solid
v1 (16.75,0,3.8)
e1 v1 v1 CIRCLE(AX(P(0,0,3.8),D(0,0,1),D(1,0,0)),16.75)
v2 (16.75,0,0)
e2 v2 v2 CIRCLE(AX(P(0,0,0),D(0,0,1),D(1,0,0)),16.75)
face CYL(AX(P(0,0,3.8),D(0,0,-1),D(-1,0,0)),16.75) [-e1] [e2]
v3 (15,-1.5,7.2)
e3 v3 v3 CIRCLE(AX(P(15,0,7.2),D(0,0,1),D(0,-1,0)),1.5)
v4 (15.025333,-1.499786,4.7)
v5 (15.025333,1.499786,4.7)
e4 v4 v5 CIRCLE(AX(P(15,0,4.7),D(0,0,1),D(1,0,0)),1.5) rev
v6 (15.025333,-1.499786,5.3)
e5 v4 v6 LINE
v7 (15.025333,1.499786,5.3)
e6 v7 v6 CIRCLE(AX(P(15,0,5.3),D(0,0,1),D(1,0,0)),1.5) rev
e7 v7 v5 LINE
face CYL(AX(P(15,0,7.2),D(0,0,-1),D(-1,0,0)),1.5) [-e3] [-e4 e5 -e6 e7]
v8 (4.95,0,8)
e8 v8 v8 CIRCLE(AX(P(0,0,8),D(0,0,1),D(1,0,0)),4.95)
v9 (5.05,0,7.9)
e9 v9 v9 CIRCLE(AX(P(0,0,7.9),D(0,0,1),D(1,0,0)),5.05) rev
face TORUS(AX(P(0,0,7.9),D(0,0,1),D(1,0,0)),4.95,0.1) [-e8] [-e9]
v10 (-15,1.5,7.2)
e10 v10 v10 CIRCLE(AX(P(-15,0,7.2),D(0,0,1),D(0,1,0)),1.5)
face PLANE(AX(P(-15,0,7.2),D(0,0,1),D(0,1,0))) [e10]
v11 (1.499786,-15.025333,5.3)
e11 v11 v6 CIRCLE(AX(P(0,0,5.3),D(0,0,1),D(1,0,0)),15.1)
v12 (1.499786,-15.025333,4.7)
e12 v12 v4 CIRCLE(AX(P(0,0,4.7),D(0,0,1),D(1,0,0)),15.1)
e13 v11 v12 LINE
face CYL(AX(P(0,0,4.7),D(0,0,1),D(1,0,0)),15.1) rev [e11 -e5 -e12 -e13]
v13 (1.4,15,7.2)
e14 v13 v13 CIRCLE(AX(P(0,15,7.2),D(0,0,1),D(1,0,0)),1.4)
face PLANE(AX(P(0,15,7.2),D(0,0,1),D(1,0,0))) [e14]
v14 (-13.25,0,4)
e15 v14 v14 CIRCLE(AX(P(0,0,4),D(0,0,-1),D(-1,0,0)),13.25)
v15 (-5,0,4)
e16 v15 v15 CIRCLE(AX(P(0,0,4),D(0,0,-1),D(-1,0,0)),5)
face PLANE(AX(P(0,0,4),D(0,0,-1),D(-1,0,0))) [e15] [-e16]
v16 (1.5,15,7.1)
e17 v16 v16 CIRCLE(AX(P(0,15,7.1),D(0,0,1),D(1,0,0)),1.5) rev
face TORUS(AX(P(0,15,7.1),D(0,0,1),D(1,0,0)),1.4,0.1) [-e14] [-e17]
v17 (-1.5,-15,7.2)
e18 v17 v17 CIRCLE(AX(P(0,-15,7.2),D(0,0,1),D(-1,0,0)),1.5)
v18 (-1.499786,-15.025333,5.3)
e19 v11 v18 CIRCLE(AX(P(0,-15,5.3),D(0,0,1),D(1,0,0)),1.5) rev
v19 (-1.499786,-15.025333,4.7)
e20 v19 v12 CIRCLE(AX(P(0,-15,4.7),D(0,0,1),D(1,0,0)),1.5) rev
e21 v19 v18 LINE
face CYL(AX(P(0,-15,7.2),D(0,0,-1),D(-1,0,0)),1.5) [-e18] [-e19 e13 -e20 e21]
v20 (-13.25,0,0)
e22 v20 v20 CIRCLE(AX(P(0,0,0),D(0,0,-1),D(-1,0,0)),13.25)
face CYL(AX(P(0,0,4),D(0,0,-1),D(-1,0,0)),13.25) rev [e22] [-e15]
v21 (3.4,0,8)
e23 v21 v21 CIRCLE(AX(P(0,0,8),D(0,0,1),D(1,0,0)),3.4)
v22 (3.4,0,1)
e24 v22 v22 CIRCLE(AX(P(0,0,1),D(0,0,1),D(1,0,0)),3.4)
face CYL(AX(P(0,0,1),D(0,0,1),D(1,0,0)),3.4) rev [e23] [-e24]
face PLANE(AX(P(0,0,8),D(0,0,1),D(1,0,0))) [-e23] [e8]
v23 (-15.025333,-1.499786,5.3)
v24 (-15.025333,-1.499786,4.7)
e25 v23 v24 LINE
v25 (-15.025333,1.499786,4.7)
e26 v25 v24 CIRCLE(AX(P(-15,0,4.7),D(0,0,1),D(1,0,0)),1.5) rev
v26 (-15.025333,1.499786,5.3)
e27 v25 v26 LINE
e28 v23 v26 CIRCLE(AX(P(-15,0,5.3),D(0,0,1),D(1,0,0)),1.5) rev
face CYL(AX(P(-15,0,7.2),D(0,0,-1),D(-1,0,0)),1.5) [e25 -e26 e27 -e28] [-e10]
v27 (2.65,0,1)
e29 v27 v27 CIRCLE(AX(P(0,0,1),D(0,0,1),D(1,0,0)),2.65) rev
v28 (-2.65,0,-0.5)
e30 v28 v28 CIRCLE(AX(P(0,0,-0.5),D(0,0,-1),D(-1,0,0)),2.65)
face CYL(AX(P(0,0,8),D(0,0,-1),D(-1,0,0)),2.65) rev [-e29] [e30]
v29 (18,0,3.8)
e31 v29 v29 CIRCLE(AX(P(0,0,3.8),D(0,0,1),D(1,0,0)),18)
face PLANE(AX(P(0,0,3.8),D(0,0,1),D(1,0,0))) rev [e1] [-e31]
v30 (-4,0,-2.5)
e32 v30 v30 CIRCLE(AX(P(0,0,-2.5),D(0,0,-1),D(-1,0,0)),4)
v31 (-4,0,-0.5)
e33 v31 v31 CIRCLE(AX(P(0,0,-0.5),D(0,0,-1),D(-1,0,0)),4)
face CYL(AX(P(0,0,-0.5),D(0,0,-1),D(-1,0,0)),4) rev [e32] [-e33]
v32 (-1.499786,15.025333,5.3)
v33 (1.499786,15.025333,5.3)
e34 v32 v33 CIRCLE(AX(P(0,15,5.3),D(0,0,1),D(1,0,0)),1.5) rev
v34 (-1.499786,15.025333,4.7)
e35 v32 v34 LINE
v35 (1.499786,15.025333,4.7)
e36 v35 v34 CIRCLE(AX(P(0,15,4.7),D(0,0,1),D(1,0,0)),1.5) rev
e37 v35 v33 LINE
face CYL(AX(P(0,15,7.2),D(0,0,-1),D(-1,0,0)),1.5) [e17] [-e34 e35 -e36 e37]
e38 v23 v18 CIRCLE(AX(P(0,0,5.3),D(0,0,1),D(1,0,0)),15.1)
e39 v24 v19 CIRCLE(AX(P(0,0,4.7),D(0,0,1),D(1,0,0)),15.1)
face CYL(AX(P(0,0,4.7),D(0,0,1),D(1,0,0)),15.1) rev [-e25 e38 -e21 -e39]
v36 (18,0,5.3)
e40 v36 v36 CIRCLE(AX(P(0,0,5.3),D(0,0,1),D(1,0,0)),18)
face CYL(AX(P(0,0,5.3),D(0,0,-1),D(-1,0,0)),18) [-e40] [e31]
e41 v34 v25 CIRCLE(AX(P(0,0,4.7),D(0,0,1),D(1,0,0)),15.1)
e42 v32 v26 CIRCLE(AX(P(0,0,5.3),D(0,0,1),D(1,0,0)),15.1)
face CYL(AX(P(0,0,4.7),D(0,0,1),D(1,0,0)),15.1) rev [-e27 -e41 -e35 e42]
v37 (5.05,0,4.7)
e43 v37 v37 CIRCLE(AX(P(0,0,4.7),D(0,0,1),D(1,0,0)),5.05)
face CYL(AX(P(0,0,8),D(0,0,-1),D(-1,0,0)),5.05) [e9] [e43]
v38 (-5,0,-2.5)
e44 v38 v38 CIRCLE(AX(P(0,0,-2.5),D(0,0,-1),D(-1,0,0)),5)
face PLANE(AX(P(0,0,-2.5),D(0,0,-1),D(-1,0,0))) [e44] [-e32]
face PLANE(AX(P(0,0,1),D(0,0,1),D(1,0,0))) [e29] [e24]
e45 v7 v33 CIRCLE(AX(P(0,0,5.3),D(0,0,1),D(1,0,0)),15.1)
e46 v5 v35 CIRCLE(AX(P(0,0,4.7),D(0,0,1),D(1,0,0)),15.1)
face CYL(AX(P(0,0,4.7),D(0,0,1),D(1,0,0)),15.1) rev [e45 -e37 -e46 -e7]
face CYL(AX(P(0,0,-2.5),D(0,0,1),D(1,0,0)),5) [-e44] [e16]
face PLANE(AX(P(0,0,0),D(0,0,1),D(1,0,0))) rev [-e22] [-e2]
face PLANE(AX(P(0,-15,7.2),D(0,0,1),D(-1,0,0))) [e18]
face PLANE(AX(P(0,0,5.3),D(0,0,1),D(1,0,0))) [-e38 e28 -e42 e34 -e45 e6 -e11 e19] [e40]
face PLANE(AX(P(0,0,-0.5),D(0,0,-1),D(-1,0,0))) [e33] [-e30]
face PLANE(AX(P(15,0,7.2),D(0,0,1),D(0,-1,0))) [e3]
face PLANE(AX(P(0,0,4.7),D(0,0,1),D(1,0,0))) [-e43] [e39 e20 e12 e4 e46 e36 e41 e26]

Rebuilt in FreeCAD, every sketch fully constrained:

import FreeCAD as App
import Part
import Sketcher


def edges_at(feature, points):
    """Names of the edges that pass closest to the given points."""
    edges = feature.Shape.Edges
    near = lambda p: min(range(len(edges)), key=lambda i: edges[i].distToShape(Part.Vertex(*p))[0])
    return sorted({f"Edge{near(p) + 1}" for p in points})

doc = App.newDocument("Part")
body = doc.addObject("PartDesign::Body", "Body")

# Sketch on XY plane
sketch1 = doc.addObject("Sketcher::SketchObject", "Sketch")
body.addObject(sketch1)
sketch1.AttachmentSupport = (doc.XY_Plane, [""])
sketch1.MapMode = "FlatFace"
sketch1.addGeometry(Part.Circle(App.Vector(0, 0, 0), App.Vector(0, 0, 1), 17), False)
sketch1.addConstraint(Sketcher.Constraint("Coincident", 0, 3, -1, 1))
sketch1.addConstraint(Sketcher.Constraint("Diameter", 0, 33.5))
pad1 = doc.addObject("PartDesign::Pad", "Pad")
body.addObject(pad1)
pad1.Profile = sketch1
pad1.Length = 3.8

# Sketch on XY plane
sketch2 = doc.addObject("Sketcher::SketchObject", "Sketch001")
body.addObject(sketch2)
sketch2.AttachmentSupport = (doc.XY_Plane, [""])
sketch2.MapMode = "FlatFace"
sketch2.AttachmentOffset = App.Placement(App.Vector(0, 0, 3.8), App.Rotation())
sketch2.addGeometry(Part.Circle(App.Vector(0, 0, 0), App.Vector(0, 0, 1), 18), False)
sketch2.addConstraint(Sketcher.Constraint("Coincident", 0, 3, -1, 1))
sketch2.addConstraint(Sketcher.Constraint("Diameter", 0, 36.0))
pad2 = doc.addObject("PartDesign::Pad", "Pad001")
body.addObject(pad2)
pad2.Profile = sketch2
pad2.Length = 1.5

# Sketch on XY plane
sketch3 = doc.addObject("Sketcher::SketchObject", "Sketch002")
body.addObject(sketch3)
sketch3.AttachmentSupport = (doc.XY_Plane, [""])
sketch3.MapMode = "FlatFace"
sketch3.addGeometry(Part.Circle(App.Vector(0, 0, 0), App.Vector(0, 0, 1), 13), False)
sketch3.addConstraint(Sketcher.Constraint("Coincident", 0, 3, -1, 1))
sketch3.addConstraint(Sketcher.Constraint("Diameter", 0, 26.5))
pocket1 = doc.addObject("PartDesign::Pocket", "Pocket")
body.addObject(pocket1)
pocket1.Profile = sketch3
pocket1.Length = 4
pocket1.Reversed = True

# Sketch on XY plane
sketch4 = doc.addObject("Sketcher::SketchObject", "Sketch003")
body.addObject(sketch4)
sketch4.AttachmentSupport = (doc.XY_Plane, [""])
sketch4.MapMode = "FlatFace"
sketch4.AttachmentOffset = App.Placement(App.Vector(0, 0, 4), App.Rotation())
sketch4.addGeometry(Part.Circle(App.Vector(0, 0, 0), App.Vector(0, 0, 1), 5), False)
sketch4.addConstraint(Sketcher.Constraint("Coincident", 0, 3, -1, 1))
sketch4.addConstraint(Sketcher.Constraint("Diameter", 0, 10.0))
pad3 = doc.addObject("PartDesign::Pad", "Pad002")
body.addObject(pad3)
pad3.Profile = sketch4
pad3.Length = 6.5
pad3.Reversed = True

# Sketch on XY plane
sketch5 = doc.addObject("Sketcher::SketchObject", "Sketch004")
body.addObject(sketch5)
sketch5.AttachmentSupport = (doc.XY_Plane, [""])
sketch5.MapMode = "FlatFace"
sketch5.AttachmentOffset = App.Placement(App.Vector(0, 0, -2.5), App.Rotation())
sketch5.addGeometry(Part.Circle(App.Vector(0, 0, 0), App.Vector(0, 0, 1), 4), False)
sketch5.addConstraint(Sketcher.Constraint("Coincident", 0, 3, -1, 1))
sketch5.addConstraint(Sketcher.Constraint("Diameter", 0, 8.0))
pocket2 = doc.addObject("PartDesign::Pocket", "Pocket001")
body.addObject(pocket2)
pocket2.Profile = sketch5
pocket2.Length = 2
pocket2.Reversed = True

# Sketch on XY plane
sketch6 = doc.addObject("Sketcher::SketchObject", "Sketch005")
body.addObject(sketch6)
sketch6.AttachmentSupport = (doc.XY_Plane, [""])
sketch6.MapMode = "FlatFace"
sketch6.AttachmentOffset = App.Placement(App.Vector(0, 0, 5.3), App.Rotation())
sketch6.addGeometry(Part.Circle(App.Vector(0, 0, 0), App.Vector(0, 0, 1), 15), False)
sketch6.addConstraint(Sketcher.Constraint("Coincident", 0, 3, -1, 1))
sketch6.addConstraint(Sketcher.Constraint("Diameter", 0, 30.2))
pocket3 = doc.addObject("PartDesign::Pocket", "Pocket002")
body.addObject(pocket3)
pocket3.Profile = sketch6
pocket3.Length = 0.6

# Sketch on XY plane
sketch7 = doc.addObject("Sketcher::SketchObject", "Sketch006")
body.addObject(sketch7)
sketch7.AttachmentSupport = (doc.XY_Plane, [""])
sketch7.MapMode = "FlatFace"
sketch7.AttachmentOffset = App.Placement(App.Vector(0, 0, 4.7), App.Rotation())
sketch7.addGeometry(Part.Circle(App.Vector(0, 0, 0), App.Vector(0, 0, 1), 5), False)
sketch7.addConstraint(Sketcher.Constraint("Coincident", 0, 3, -1, 1))
sketch7.addConstraint(Sketcher.Constraint("Diameter", 0, 10.1))
pad4 = doc.addObject("PartDesign::Pad", "Pad003")
body.addObject(pad4)
pad4.Profile = sketch7
pad4.Length = 3.3

# Sketch on XY plane
sketch8 = doc.addObject("Sketcher::SketchObject", "Sketch007")
body.addObject(sketch8)
sketch8.AttachmentSupport = (doc.XY_Plane, [""])
sketch8.MapMode = "FlatFace"
sketch8.AttachmentOffset = App.Placement(App.Vector(0, 0, -0.5), App.Rotation())
sketch8.addGeometry(Part.Circle(App.Vector(0, 0, 0), App.Vector(0, 0, 1), 2.6), False)
sketch8.addConstraint(Sketcher.Constraint("Coincident", 0, 3, -1, 1))
sketch8.addConstraint(Sketcher.Constraint("Diameter", 0, 5.3))
pocket4 = doc.addObject("PartDesign::Pocket", "Pocket003")
body.addObject(pocket4)
pocket4.Profile = sketch8
pocket4.Type = "ThroughAll"
pocket4.Reversed = True

# Sketch on XY plane
sketch9 = doc.addObject("Sketcher::SketchObject", "Sketch008")
body.addObject(sketch9)
sketch9.AttachmentSupport = (doc.XY_Plane, [""])
sketch9.MapMode = "FlatFace"
sketch9.AttachmentOffset = App.Placement(App.Vector(0, 0, 8), App.Rotation())
sketch9.addGeometry(Part.Circle(App.Vector(0, 0, 0), App.Vector(0, 0, 1), 3.4), False)
sketch9.addConstraint(Sketcher.Constraint("Coincident", 0, 3, -1, 1))
sketch9.addConstraint(Sketcher.Constraint("Diameter", 0, 6.8))
pocket5 = doc.addObject("PartDesign::Pocket", "Pocket004")
body.addObject(pocket5)
pocket5.Profile = sketch9
pocket5.Length = 7

# Sketch on XY plane
sketch10 = doc.addObject("Sketcher::SketchObject", "Sketch009")
body.addObject(sketch10)
sketch10.AttachmentSupport = (doc.XY_Plane, [""])
sketch10.MapMode = "FlatFace"
sketch10.AttachmentOffset = App.Placement(App.Vector(0, 0, 4.7), App.Rotation())
sketch10.addGeometry(Part.Circle(App.Vector(0, 15, 0), App.Vector(0, 0, 1), 1.5), False)
sketch10.addConstraint(Sketcher.Constraint("PointOnObject", 0, 3, -2))
sketch10.addConstraint(Sketcher.Constraint("Diameter", 0, 3.0))
sketch10.addConstraint(Sketcher.Constraint("DistanceY", -1, 1, 0, 3, 15.0))
pad5 = doc.addObject("PartDesign::Pad", "Pad004")
body.addObject(pad5)
pad5.Profile = sketch10
pad5.Length = 2.5
doc.recompute()

fillet = doc.addObject("PartDesign::Fillet", "Fillet")
body.addObject(fillet)
fillet.Base = (pad5, edges_at(pad5, [(-1.5, 15, 7.2)]))
fillet.Radius = 0.1
doc.recompute()

fillet2 = doc.addObject("PartDesign::Fillet", "Fillet001")
body.addObject(fillet2)
fillet2.Base = (fillet, edges_at(fillet, [(-5.05, 0, 8)]))
fillet2.Radius = 0.1
doc.recompute()

polarpattern = doc.addObject("PartDesign::PolarPattern", "PolarPattern")
body.addObject(polarpattern)
polarpattern.Originals = [pad5]
polarpattern.Axis = (doc.Z_Axis, [""])
polarpattern.Angle = 360
polarpattern.Occurrences = 4
body.Tip = polarpattern

doc.recompute()
